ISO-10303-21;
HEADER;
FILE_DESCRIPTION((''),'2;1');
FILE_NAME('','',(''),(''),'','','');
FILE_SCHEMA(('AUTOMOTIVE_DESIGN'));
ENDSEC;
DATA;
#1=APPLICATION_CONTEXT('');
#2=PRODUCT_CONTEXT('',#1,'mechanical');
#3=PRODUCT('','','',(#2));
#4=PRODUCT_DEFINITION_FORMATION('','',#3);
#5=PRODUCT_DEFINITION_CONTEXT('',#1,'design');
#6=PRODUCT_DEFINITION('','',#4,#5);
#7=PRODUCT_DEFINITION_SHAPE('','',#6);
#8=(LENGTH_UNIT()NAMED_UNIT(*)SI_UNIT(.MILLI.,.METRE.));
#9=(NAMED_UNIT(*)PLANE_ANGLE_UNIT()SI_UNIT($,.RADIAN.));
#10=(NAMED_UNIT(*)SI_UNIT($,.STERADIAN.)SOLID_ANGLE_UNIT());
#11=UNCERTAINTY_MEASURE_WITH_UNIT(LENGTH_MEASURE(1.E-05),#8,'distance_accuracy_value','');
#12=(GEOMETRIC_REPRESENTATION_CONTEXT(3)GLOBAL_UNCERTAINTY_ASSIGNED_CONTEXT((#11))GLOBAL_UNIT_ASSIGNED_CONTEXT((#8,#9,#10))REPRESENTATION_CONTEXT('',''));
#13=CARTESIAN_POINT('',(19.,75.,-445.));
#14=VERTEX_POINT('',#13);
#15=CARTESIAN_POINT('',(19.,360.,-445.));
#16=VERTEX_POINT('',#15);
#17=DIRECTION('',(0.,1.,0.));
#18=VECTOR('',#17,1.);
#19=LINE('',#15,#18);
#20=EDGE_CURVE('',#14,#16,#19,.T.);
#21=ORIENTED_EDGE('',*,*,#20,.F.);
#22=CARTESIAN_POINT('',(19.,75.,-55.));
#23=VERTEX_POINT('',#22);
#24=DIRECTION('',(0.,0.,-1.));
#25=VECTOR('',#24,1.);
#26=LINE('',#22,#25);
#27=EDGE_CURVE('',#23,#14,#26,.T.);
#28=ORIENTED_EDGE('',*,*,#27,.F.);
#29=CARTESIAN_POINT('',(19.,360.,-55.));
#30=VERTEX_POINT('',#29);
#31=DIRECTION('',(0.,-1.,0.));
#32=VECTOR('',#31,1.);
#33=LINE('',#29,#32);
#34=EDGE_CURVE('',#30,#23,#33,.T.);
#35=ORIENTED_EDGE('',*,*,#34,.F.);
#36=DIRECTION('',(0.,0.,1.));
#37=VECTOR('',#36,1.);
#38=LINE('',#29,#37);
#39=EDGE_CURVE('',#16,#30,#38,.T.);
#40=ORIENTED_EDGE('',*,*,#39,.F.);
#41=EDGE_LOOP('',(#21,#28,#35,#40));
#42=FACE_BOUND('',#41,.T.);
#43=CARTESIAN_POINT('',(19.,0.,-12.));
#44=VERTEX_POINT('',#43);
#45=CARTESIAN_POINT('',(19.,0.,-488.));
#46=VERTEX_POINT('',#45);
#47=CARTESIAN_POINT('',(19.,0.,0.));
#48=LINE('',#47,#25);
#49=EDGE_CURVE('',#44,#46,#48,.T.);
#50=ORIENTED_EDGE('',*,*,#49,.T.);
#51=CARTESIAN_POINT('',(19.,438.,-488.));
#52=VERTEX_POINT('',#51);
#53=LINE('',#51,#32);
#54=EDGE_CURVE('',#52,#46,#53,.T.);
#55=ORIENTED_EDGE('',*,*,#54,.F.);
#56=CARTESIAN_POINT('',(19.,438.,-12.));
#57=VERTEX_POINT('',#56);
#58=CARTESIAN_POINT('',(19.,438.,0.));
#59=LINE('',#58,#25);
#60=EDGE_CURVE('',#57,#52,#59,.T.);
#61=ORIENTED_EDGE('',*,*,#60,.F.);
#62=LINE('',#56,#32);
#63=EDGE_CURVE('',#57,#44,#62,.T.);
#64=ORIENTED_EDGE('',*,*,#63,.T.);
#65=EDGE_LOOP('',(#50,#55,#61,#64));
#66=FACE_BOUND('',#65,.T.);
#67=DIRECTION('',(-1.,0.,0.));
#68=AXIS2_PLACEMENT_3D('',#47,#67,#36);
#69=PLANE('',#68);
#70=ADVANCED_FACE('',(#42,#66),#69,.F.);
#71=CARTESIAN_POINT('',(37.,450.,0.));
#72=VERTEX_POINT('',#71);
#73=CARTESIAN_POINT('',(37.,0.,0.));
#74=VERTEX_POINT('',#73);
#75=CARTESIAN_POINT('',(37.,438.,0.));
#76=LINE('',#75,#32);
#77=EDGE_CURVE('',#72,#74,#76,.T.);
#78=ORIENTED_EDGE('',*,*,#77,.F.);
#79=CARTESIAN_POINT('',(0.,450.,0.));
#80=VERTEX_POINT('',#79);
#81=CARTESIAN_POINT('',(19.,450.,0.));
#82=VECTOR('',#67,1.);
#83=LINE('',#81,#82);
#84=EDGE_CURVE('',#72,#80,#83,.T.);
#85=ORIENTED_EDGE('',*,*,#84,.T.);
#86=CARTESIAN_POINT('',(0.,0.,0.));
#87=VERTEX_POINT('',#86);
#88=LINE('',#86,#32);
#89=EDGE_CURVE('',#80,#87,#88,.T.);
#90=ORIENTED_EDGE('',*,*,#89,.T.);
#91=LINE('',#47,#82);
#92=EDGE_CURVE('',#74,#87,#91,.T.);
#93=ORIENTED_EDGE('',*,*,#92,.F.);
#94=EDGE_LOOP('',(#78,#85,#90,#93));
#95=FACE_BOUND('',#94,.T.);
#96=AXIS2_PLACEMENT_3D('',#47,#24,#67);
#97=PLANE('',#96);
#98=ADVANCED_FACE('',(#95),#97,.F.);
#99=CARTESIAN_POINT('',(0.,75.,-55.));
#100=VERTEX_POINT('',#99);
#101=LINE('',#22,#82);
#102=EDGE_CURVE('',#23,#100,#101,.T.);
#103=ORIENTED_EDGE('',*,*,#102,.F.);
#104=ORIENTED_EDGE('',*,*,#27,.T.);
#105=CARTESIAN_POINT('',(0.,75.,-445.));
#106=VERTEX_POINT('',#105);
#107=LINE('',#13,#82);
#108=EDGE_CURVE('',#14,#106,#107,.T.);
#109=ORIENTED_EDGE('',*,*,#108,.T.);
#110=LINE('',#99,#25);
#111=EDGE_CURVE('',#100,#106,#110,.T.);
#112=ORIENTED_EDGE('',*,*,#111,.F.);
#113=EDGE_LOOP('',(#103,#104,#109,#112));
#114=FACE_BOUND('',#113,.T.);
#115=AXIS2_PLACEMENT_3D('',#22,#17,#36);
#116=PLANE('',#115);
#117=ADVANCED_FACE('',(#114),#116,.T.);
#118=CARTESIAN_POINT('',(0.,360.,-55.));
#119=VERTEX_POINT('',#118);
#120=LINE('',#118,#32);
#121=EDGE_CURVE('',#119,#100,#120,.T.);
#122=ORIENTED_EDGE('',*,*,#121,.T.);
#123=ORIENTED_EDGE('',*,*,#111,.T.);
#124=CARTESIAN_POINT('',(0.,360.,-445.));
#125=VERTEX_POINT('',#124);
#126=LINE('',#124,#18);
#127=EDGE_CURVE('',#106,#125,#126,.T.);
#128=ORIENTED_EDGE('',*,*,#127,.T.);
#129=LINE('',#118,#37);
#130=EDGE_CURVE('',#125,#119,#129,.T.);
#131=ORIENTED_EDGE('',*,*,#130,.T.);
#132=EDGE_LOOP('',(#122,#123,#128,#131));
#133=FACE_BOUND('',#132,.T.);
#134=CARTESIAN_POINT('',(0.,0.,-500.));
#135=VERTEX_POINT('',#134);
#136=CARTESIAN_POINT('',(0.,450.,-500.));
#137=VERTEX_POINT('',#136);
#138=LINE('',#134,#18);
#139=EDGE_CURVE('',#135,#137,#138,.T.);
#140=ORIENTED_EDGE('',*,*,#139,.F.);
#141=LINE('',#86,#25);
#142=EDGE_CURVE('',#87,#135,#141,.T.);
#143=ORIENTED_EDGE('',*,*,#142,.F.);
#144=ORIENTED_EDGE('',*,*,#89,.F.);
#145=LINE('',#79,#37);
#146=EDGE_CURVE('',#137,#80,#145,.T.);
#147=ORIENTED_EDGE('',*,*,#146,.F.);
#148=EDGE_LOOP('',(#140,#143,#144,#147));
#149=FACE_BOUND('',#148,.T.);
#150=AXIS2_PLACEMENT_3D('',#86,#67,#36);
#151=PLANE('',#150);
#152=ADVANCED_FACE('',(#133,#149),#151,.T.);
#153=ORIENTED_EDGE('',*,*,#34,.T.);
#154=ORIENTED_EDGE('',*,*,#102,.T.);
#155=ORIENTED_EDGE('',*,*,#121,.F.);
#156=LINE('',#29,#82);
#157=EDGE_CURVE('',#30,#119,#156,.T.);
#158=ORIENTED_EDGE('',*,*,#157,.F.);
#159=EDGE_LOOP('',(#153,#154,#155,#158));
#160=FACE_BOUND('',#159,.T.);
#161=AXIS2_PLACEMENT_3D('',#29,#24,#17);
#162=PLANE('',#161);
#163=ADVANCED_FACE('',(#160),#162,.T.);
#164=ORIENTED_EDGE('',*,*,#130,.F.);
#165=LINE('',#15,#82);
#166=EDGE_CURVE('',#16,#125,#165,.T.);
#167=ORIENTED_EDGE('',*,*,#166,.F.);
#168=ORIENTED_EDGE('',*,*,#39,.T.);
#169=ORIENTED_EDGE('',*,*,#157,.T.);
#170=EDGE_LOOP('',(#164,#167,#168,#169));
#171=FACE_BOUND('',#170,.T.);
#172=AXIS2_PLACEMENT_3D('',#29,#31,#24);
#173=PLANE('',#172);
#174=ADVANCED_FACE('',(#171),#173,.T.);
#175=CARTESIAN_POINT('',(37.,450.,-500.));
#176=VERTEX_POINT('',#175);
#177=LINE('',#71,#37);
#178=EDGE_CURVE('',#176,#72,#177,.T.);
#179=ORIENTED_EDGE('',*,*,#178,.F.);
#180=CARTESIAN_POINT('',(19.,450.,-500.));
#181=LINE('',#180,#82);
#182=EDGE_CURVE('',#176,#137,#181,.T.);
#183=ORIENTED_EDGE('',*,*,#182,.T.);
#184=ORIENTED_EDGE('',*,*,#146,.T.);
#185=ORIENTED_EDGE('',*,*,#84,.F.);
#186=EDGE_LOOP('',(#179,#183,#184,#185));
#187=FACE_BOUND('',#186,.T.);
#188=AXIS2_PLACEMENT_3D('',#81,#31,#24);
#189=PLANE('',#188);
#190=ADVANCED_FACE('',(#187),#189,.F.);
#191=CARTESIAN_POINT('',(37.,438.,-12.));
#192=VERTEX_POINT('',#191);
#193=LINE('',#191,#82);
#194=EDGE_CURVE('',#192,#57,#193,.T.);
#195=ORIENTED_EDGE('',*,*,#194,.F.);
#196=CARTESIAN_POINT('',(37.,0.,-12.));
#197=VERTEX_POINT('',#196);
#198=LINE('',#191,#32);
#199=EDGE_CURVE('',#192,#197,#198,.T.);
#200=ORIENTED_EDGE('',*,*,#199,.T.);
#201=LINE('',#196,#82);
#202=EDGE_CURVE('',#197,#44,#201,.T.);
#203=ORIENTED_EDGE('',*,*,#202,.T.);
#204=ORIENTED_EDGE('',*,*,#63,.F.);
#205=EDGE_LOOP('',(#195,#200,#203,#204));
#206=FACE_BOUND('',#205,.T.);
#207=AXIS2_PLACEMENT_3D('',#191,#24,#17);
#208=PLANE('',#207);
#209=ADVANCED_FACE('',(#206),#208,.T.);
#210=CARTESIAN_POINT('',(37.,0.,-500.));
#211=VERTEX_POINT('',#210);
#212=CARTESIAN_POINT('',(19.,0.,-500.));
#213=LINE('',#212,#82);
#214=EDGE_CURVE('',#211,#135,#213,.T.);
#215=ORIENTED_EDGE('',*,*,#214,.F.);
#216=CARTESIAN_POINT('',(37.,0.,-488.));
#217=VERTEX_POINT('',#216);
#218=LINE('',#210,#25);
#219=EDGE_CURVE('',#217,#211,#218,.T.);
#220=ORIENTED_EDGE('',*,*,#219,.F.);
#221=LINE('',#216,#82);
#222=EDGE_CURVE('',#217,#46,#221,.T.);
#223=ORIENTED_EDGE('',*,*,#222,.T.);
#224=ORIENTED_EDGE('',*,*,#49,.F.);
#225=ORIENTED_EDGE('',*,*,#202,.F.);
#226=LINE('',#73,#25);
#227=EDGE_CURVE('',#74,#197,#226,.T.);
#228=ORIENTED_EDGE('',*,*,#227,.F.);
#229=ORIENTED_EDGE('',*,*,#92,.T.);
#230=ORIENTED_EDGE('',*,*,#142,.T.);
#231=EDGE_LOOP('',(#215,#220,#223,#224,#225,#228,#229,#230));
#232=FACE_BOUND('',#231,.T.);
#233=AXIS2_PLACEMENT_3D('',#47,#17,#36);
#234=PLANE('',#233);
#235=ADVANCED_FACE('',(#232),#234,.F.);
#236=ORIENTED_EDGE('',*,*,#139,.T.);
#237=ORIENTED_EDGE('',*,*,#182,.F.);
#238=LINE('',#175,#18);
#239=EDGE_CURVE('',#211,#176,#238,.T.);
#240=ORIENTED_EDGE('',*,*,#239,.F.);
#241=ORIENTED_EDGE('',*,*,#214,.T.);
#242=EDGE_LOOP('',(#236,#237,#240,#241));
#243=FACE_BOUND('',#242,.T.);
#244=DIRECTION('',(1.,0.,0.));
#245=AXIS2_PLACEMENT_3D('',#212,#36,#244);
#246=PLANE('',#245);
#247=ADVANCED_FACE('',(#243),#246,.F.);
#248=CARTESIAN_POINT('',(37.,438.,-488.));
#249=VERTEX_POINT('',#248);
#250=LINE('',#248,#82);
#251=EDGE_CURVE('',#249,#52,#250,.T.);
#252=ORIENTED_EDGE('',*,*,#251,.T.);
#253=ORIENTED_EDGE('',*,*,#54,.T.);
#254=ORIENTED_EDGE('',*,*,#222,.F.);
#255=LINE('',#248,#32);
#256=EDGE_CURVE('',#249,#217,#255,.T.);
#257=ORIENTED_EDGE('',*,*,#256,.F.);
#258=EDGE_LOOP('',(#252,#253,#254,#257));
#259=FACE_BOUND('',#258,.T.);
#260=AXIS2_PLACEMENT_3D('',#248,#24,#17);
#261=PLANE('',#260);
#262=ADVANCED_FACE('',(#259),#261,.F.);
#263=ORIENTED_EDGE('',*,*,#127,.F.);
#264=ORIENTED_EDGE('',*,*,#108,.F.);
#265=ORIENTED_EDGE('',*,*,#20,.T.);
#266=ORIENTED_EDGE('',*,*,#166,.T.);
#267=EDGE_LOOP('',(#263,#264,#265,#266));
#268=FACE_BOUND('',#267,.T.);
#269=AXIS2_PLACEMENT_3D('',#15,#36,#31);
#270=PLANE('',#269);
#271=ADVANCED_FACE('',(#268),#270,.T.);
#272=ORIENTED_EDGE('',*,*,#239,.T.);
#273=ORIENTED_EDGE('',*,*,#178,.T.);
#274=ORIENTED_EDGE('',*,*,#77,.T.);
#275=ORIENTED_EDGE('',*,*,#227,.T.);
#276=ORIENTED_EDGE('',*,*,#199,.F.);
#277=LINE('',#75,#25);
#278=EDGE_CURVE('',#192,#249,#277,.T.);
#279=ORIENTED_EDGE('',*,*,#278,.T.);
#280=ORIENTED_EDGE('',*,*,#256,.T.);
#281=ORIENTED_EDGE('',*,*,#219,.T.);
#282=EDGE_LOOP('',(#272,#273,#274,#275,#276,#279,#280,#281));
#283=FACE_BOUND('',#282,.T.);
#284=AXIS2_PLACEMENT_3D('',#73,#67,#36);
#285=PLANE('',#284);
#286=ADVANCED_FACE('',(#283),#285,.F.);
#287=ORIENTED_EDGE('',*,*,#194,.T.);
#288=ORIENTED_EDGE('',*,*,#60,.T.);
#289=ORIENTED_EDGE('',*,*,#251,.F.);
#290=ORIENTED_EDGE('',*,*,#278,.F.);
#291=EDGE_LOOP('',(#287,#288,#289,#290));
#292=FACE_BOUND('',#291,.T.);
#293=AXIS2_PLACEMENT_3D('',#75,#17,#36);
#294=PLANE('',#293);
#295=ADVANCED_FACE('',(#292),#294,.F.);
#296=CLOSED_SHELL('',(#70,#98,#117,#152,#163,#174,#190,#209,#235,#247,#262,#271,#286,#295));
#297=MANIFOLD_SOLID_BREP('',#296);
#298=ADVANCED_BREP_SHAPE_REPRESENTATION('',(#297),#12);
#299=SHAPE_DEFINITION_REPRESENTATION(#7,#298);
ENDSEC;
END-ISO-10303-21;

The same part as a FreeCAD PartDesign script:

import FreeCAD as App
import Part
import Sketcher

doc = App.newDocument("Part")
body = doc.addObject("PartDesign::Body", "Body")

# Sketch on YZ plane
sketch1 = body.newObject("Sketcher::SketchObject", "Sketch")
sketch1.AttachmentSupport = (doc.getObject("YZ_Plane"), [""])
sketch1.MapMode = "FlatFace"
sketch1.addGeometry([
    Part.LineSegment(App.Vector(450, 0, 0), App.Vector(0, 0, 0)),  # 0
    Part.LineSegment(App.Vector(0, 0, 0), App.Vector(0, -500, 0)),  # 1
    Part.LineSegment(App.Vector(0, -500, 0), App.Vector(450, -500, 0)),  # 2
    Part.LineSegment(App.Vector(450, -500, 0), App.Vector(450, 0, 0)),  # 3
    Part.LineSegment(App.Vector(75, -445, 0), App.Vector(75, -55, 0)),  # 4
    Part.LineSegment(App.Vector(75, -55, 0), App.Vector(360, -55, 0)),  # 5
    Part.LineSegment(App.Vector(360, -55, 0), App.Vector(360, -445, 0)),  # 6
    Part.LineSegment(App.Vector(360, -445, 0), App.Vector(75, -445, 0)),  # 7
], False)
sketch1.addConstraint([
    Sketcher.Constraint("Coincident", 0, 2, 1, 1),
    Sketcher.Constraint("Coincident", 1, 2, 2, 1),
    Sketcher.Constraint("Coincident", 2, 2, 3, 1),
    Sketcher.Constraint("Coincident", 3, 2, 0, 1),
    Sketcher.Constraint("Coincident", 4, 2, 5, 1),
    Sketcher.Constraint("Coincident", 5, 2, 6, 1),
    Sketcher.Constraint("Coincident", 6, 2, 7, 1),
    Sketcher.Constraint("Coincident", 7, 2, 4, 1),
    Sketcher.Constraint("Horizontal", 0),
    Sketcher.Constraint("Vertical", 1),
    Sketcher.Constraint("Horizontal", 2),
    Sketcher.Constraint("Vertical", 3),
    Sketcher.Constraint("Vertical", 4),
    Sketcher.Constraint("Horizontal", 5),
    Sketcher.Constraint("Vertical", 6),
    Sketcher.Constraint("Horizontal", 7),
    Sketcher.Constraint("Coincident", 0, 2, -1, 1),
    Sketcher.Constraint("DistanceX", 0, 2, 0, 1, 450.0),
    Sketcher.Constraint("DistanceX", 5, 1, 5, 2, 285.0),
    Sketcher.Constraint("DistanceY", 1, 2, 1, 1, 500.0),
    Sketcher.Constraint("DistanceY", 4, 1, 4, 2, 390.0),
    Sketcher.Constraint("DistanceX", -1, 1, 4, 2, 75.0),
    Sketcher.Constraint("DistanceY", 4, 2, -1, 1, 55.0),
])
pad1 = body.newObject("PartDesign::Pad", "Pad")
pad1.Profile = sketch1
pad1.Length = 19

# Sketch on YZ plane
sketch2 = body.newObject("Sketcher::SketchObject", "Sketch001")
sketch2.AttachmentSupport = (doc.getObject("YZ_Plane"), [""])
sketch2.MapMode = "FlatFace"
sketch2.AttachmentOffset = App.Placement(App.Vector(0, 0, 19), App.Rotation())
sketch2.addGeometry([
    Part.LineSegment(App.Vector(438, 0, 0), App.Vector(0, 0, 0)),
    Part.LineSegment(App.Vector(0, 0, 0), App.Vector(0, -12, 0)),
    Part.LineSegment(App.Vector(0, -12, 0), App.Vector(438, -12, 0)),
    Part.LineSegment(App.Vector(438, -12, 0), App.Vector(438, 0, 0)),
], False)
sketch2.addConstraint([
    Sketcher.Constraint("Coincident", 0, 2, 1, 1),
    Sketcher.Constraint("Coincident", 1, 2, 2, 1),
    Sketcher.Constraint("Coincident", 2, 2, 3, 1),
    Sketcher.Constraint("Coincident", 3, 2, 0, 1),
    Sketcher.Constraint("Horizontal", 0),
    Sketcher.Constraint("Vertical", 1),
    Sketcher.Constraint("Horizontal", 2),
    Sketcher.Constraint("Vertical", 3),
    Sketcher.Constraint("Coincident", 0, 2, -1, 1),
    Sketcher.Constraint("DistanceX", 0, 2, 0, 1, 438.0),
    Sketcher.Constraint("DistanceY", 1, 2, 1, 1, 12.0),
])
pad2 = body.newObject("PartDesign::Pad", "Pad001")
pad2.Profile = sketch2
pad2.Length = 18

# Sketch on YZ plane
sketch3 = body.newObject("Sketcher::SketchObject", "Sketch002")
sketch3.AttachmentSupport = (doc.getObject("YZ_Plane"), [""])
sketch3.MapMode = "FlatFace"
sketch3.AttachmentOffset = App.Placement(App.Vector(0, 0, 19), App.Rotation())
sketch3.addGeometry([
    Part.LineSegment(App.Vector(450, 0, 0), App.Vector(438, 0, 0)),
    Part.LineSegment(App.Vector(438, 0, 0), App.Vector(438, -500, 0)),
    Part.LineSegment(App.Vector(438, -500, 0), App.Vector(450, -500, 0)),
    Part.LineSegment(App.Vector(450, -500, 0), App.Vector(450, 0, 0)),
], False)
sketch3.addConstraint([
    Sketcher.Constraint("Coincident", 0, 2, 1, 1),
    Sketcher.Constraint("Coincident", 1, 2, 2, 1),
    Sketcher.Constraint("Coincident", 2, 2, 3, 1),
    Sketcher.Constraint("Coincident", 3, 2, 0, 1),
    Sketcher.Constraint("Horizontal", 0),
    Sketcher.Constraint("Vertical", 1),
    Sketcher.Constraint("Horizontal", 2),
    Sketcher.Constraint("Vertical", 3),
    Sketcher.Constraint("PointOnObject", 0, 2, -1),
    Sketcher.Constraint("DistanceX", 0, 2, 0, 1, 12.0),
    Sketcher.Constraint("DistanceY", 1, 2, 1, 1, 500.0),
    Sketcher.Constraint("DistanceX", -1, 1, 0, 2, 438.0),
])
pad3 = body.newObject("PartDesign::Pad", "Pad002")
pad3.Profile = sketch3
pad3.Length = 18

# Sketch on YZ plane
sketch4 = body.newObject("Sketcher::SketchObject", "Sketch003")
sketch4.AttachmentSupport = (doc.getObject("YZ_Plane"), [""])
sketch4.MapMode = "FlatFace"
sketch4.AttachmentOffset = App.Placement(App.Vector(0, 0, 19), App.Rotation())
sketch4.addGeometry([
    Part.LineSegment(App.Vector(438, -488, 0), App.Vector(0, -488, 0)),
    Part.LineSegment(App.Vector(0, -488, 0), App.Vector(0, -500, 0)),
    Part.LineSegment(App.Vector(0, -500, 0), App.Vector(438, -500, 0)),
    Part.LineSegment(App.Vector(438, -500, 0), App.Vector(438, -488, 0)),
], False)
sketch4.addConstraint([
    Sketcher.Constraint("Coincident", 0, 2, 1, 1),
    Sketcher.Constraint("Coincident", 1, 2, 2, 1),
    Sketcher.Constraint("Coincident", 2, 2, 3, 1),
    Sketcher.Constraint("Coincident", 3, 2, 0, 1),
    Sketcher.Constraint("Horizontal", 0),
    Sketcher.Constraint("Vertical", 1),
    Sketcher.Constraint("Horizontal", 2),
    Sketcher.Constraint("Vertical", 3),
    Sketcher.Constraint("PointOnObject", 0, 2, -2),
    Sketcher.Constraint("DistanceX", 0, 2, 0, 1, 438.0),
    Sketcher.Constraint("DistanceY", 1, 2, 1, 1, 12.0),
    Sketcher.Constraint("DistanceY", 0, 2, -1, 1, 488.0),
])
pad4 = body.newObject("PartDesign::Pad", "Pad003")
pad4.Profile = sketch4
pad4.Length = 18

doc.recompute()
